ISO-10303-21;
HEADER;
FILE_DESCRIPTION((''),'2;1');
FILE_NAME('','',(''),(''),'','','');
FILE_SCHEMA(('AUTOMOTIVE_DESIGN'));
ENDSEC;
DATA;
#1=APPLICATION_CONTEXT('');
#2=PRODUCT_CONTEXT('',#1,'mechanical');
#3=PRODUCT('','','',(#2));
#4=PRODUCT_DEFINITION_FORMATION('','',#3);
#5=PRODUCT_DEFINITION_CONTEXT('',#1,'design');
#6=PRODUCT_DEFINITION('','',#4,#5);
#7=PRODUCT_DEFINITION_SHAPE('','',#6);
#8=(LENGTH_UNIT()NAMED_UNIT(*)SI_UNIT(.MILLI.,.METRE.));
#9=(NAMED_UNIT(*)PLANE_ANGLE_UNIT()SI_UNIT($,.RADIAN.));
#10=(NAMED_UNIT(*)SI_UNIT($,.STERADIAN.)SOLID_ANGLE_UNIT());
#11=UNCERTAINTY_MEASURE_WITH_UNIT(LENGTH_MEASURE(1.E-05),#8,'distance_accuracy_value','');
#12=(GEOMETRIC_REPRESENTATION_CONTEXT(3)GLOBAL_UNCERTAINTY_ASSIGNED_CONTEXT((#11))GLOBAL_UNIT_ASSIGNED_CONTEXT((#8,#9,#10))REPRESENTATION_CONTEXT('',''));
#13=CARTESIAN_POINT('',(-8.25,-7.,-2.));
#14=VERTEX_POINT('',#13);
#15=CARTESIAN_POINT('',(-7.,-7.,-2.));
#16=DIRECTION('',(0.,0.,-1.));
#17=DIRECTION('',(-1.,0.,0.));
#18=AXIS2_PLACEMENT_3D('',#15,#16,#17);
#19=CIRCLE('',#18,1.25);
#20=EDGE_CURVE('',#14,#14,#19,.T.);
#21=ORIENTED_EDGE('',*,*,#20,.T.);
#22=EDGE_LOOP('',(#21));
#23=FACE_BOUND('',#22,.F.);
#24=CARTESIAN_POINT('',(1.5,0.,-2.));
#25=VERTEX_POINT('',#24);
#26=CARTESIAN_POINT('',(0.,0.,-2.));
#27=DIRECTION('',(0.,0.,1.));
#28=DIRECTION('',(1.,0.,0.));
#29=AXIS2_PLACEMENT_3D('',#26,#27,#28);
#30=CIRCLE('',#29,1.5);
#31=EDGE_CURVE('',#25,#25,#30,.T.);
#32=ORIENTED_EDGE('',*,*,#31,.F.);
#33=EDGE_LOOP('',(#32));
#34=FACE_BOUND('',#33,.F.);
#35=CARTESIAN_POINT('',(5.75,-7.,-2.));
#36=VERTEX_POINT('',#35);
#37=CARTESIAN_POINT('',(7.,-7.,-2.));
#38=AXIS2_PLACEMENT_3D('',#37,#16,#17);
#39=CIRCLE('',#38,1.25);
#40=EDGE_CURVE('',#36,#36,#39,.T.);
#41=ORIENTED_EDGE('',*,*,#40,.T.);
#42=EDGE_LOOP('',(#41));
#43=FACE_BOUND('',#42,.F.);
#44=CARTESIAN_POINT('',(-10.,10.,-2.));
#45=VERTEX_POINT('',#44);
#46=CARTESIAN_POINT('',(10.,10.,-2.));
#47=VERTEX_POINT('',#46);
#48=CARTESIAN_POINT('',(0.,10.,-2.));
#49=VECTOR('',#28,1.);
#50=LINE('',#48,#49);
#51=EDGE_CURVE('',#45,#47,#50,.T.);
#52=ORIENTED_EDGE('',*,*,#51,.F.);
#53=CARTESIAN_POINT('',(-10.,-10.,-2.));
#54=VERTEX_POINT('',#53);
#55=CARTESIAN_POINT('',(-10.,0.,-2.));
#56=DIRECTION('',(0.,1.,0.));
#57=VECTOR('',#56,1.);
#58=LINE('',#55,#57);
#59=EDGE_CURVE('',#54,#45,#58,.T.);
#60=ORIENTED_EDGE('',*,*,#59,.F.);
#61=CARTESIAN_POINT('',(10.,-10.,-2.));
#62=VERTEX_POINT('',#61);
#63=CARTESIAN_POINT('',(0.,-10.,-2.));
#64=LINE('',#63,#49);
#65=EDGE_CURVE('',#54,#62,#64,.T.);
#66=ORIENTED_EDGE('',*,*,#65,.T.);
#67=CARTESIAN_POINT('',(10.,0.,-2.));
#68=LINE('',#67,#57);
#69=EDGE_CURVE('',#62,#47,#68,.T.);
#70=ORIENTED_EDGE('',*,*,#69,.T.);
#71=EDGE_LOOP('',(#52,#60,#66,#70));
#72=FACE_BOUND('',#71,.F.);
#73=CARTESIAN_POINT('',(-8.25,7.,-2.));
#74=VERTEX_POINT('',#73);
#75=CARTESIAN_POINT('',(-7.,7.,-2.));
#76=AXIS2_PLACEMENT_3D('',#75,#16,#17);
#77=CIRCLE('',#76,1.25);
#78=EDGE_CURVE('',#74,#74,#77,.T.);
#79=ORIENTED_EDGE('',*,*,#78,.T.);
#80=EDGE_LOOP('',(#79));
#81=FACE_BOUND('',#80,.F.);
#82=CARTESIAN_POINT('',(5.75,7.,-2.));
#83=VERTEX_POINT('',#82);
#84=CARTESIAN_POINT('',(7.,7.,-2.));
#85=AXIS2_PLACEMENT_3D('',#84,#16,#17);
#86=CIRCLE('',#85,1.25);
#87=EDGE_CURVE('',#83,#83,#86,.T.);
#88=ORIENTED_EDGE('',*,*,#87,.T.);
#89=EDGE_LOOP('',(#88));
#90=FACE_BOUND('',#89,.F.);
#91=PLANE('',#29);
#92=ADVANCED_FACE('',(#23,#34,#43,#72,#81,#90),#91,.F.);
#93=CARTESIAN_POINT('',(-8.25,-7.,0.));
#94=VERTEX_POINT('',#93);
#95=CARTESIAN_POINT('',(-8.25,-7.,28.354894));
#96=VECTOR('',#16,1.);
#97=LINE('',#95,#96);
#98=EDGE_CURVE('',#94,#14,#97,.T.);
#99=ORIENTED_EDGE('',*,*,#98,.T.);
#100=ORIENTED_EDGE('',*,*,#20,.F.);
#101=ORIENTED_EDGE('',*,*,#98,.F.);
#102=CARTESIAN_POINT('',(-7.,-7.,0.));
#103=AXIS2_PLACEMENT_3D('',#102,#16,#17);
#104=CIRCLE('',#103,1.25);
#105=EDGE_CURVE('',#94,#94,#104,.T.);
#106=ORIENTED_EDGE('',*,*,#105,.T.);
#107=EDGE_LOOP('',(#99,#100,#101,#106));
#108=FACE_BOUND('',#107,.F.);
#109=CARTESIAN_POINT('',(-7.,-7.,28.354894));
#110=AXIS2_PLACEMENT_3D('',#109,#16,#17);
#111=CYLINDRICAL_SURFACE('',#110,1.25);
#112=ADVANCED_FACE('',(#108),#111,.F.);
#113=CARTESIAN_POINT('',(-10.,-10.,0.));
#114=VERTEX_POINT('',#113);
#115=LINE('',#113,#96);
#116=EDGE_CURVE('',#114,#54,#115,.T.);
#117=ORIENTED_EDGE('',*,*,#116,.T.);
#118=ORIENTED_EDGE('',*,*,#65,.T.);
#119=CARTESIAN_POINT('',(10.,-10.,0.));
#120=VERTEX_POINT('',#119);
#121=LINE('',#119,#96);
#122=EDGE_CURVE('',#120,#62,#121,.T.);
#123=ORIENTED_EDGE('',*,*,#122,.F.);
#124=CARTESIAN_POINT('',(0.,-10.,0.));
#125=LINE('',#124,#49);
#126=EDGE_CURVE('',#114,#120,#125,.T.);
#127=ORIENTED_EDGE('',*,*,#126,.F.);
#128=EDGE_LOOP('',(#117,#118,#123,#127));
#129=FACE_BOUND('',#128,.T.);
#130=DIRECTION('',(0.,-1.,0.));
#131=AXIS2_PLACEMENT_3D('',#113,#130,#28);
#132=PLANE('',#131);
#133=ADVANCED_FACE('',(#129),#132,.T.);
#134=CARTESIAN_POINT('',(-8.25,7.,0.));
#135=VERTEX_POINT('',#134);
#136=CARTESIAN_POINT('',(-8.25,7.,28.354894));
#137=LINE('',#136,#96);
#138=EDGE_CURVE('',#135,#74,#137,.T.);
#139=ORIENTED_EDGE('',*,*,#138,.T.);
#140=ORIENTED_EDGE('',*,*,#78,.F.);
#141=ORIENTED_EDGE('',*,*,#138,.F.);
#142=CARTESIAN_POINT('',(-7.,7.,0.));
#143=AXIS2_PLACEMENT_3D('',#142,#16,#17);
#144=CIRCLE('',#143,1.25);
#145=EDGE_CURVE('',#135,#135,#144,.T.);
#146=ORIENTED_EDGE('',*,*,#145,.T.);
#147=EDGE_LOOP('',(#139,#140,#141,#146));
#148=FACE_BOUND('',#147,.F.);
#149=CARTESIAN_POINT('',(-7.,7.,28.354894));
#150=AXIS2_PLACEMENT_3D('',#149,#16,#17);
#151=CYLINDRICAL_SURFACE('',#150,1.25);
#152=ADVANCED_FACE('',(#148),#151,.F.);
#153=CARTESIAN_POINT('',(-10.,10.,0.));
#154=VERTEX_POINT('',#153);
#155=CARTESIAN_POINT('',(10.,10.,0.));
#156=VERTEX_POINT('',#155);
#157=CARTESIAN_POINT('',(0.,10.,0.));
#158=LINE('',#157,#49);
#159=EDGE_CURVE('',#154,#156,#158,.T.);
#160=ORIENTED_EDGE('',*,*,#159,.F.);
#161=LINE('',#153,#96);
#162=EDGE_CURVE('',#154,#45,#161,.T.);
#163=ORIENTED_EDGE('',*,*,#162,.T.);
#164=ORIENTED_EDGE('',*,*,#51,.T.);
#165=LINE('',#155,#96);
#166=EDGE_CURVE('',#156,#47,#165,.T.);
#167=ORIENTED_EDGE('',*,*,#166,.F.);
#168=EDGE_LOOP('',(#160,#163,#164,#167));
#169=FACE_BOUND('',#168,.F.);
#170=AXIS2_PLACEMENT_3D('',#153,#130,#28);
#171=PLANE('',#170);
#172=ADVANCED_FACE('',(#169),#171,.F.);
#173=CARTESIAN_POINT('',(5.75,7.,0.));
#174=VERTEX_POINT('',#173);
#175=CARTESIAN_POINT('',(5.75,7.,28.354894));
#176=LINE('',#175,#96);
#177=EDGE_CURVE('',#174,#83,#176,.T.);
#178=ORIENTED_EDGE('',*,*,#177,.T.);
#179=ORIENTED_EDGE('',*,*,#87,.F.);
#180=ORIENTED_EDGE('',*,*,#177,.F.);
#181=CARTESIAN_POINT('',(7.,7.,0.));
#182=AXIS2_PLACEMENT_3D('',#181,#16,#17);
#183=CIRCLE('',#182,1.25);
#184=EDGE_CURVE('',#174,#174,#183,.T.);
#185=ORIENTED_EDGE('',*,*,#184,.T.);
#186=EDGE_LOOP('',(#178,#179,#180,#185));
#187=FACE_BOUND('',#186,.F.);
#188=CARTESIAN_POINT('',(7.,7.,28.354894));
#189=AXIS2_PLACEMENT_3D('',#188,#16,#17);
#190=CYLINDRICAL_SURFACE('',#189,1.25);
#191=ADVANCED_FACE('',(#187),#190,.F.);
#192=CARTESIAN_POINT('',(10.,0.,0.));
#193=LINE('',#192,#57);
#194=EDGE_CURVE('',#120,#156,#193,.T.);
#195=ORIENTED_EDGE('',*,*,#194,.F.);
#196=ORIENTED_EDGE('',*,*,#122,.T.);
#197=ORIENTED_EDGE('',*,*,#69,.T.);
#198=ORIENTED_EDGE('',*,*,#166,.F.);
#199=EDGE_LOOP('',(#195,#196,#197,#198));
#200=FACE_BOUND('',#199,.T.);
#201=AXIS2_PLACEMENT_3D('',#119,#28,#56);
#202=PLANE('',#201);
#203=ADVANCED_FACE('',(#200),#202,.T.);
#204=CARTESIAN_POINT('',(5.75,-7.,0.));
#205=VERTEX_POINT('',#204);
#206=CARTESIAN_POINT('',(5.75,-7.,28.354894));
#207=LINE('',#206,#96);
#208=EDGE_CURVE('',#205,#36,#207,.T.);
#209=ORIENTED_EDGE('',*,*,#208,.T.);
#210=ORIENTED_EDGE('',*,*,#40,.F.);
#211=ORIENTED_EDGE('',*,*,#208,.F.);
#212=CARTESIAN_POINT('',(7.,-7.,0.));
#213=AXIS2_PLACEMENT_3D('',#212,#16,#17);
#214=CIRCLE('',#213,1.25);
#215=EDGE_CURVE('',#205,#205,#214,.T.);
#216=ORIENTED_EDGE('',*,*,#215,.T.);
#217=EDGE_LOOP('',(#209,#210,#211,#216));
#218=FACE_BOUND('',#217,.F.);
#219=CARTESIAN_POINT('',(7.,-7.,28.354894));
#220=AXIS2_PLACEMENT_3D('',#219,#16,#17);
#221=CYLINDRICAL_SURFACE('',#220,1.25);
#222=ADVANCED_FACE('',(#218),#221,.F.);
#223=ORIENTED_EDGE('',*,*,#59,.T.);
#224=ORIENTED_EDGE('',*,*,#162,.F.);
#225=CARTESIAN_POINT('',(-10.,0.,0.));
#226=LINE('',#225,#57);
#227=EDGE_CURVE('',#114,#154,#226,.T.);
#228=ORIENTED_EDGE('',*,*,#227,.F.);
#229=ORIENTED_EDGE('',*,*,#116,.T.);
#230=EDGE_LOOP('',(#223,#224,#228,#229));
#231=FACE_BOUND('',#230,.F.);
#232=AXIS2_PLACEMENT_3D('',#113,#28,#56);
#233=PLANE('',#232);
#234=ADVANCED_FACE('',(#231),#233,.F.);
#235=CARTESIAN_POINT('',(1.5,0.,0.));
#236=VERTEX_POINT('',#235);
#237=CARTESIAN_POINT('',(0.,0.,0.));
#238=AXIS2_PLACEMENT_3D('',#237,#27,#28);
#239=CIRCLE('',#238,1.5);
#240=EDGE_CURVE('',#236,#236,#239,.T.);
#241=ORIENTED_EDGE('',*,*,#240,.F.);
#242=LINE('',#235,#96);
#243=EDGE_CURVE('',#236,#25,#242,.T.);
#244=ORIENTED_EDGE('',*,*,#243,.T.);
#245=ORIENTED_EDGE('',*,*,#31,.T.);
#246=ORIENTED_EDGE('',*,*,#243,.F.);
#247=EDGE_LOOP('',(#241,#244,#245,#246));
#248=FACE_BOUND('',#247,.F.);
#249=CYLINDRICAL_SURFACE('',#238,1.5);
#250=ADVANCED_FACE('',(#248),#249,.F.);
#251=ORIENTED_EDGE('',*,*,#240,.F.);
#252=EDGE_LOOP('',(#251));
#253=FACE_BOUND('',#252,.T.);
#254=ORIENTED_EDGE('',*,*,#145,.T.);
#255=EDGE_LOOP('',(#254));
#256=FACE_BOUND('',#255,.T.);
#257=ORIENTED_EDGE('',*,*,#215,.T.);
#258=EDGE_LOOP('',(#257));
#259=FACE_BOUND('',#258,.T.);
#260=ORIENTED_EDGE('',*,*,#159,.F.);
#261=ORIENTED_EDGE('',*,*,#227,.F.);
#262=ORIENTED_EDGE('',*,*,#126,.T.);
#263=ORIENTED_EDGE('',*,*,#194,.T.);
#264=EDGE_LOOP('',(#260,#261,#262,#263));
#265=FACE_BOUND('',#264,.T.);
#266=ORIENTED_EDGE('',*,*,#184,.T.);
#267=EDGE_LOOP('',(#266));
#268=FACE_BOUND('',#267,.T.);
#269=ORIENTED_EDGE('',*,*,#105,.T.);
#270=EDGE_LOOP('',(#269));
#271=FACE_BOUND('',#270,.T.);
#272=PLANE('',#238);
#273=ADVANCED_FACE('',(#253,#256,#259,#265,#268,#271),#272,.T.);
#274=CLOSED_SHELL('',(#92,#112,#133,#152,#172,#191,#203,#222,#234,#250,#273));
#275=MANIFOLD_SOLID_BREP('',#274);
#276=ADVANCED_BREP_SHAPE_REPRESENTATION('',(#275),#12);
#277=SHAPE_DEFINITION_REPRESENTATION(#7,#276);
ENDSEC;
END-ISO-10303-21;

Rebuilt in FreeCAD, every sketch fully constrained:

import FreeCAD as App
import Part
import Sketcher
Q = App.Units.Quantity


def add_polygon(sketch, points):
    """Adds a closed chain of lines whose ends are joined by coincident constraints."""
    first, n = sketch.GeometryCount, len(points)
    for a, b in zip(points, points[1:] + points[:1]):
        sketch.addGeometry(Part.LineSegment(App.Vector(*a, 0), App.Vector(*b, 0)), False)
    for i in range(n):
        sketch.addConstraint(Sketcher.Constraint("Coincident", first + i, 2, first + (i + 1) % n, 1))

doc = App.newDocument("Part")
body = doc.addObject("PartDesign::Body", "Body")

sketch1 = body.newObject("Sketcher::SketchObject", "Sketch")
sketch1.AttachmentSupport = (doc.getObject("XY_Plane"), [""])
sketch1.MapMode = "FlatFace"
add_polygon(sketch1, [(-10, 10), (-10, -10), (10, -10), (10, 10)])
sketch1.addConstraint([
    Sketcher.Constraint("Vertical", 0),
    Sketcher.Constraint("Horizontal", 1),
    Sketcher.Constraint("Vertical", 2),
    Sketcher.Constraint("Horizontal", 3),
    Sketcher.Constraint("Symmetric", 0, 2, 2, 2, -1, 1),
    Sketcher.Constraint("Equal", 3, 0),
    Sketcher.Constraint("DistanceX", 1, 1, 1, 2, Q("20 mm")),
])
pad1 = body.newObject("PartDesign::Pad", "Pad")
pad1.Profile = sketch1
pad1.Length = 2
pad1.Reversed = True

sketch2 = body.newObject("Sketcher::SketchObject", "Sketch001")
sketch2.AttachmentSupport = (doc.getObject("XY_Plane"), [""])
sketch2.MapMode = "FlatFace"
sketch2.addGeometry([
    Part.Circle(App.Vector(-7, 7, 0), App.Vector(0, 0, 1), 1.2),
    Part.Circle(App.Vector(7, 7, 0), App.Vector(0, 0, 1), 1.2),
    Part.Circle(App.Vector(-7, -7, 0), App.Vector(0, 0, 1), 1.2),
    Part.Circle(App.Vector(7, -7, 0), App.Vector(0, 0, 1), 1.2),
], False)
sketch2.addConstraint([
    Sketcher.Constraint("Equal", 0, 1),
    Sketcher.Constraint("Equal", 1, 2),
    Sketcher.Constraint("Equal", 2, 3),
    Sketcher.Constraint("Symmetric", 1, 3, 2, 3, -1, 1),
    Sketcher.Constraint("Symmetric", 0, 3, 3, 3, -1, 1),
    Sketcher.Constraint("Symmetric", 0, 3, 1, 3, -2),
    Sketcher.Constraint("Diameter", 0, Q("2.5 mm")),
    Sketcher.Constraint("DistanceX", 0, 3, -1, 1, Q("7 mm")),
    Sketcher.Constraint("DistanceY", -1, 1, 0, 3, Q("7 mm")),
])
doc.recompute()
hole = body.newObject("PartDesign::Hole", "Hole")
hole.Profile = sketch2
hole.ThreadType = "None"
hole.Diameter = 2.5
hole.DepthType = "ThroughAll"

sketch3 = body.newObject("Sketcher::SketchObject", "Sketch002")
sketch3.AttachmentSupport = (doc.getObject("XY_Plane"), [""])
sketch3.MapMode = "FlatFace"
sketch3.addGeometry(Part.Circle(App.Vector(0, 0, 0), App.Vector(0, 0, 1), 1.5), False)
sketch3.addConstraint([
    Sketcher.Constraint("Coincident", 0, 3, -1, 1),
    Sketcher.Constraint("Diameter", 0, Q("3 mm")),
])
pocket1 = body.newObject("PartDesign::Pocket", "Pocket")
pocket1.Profile = sketch3
pocket1.Length = 25

doc.recompute()
